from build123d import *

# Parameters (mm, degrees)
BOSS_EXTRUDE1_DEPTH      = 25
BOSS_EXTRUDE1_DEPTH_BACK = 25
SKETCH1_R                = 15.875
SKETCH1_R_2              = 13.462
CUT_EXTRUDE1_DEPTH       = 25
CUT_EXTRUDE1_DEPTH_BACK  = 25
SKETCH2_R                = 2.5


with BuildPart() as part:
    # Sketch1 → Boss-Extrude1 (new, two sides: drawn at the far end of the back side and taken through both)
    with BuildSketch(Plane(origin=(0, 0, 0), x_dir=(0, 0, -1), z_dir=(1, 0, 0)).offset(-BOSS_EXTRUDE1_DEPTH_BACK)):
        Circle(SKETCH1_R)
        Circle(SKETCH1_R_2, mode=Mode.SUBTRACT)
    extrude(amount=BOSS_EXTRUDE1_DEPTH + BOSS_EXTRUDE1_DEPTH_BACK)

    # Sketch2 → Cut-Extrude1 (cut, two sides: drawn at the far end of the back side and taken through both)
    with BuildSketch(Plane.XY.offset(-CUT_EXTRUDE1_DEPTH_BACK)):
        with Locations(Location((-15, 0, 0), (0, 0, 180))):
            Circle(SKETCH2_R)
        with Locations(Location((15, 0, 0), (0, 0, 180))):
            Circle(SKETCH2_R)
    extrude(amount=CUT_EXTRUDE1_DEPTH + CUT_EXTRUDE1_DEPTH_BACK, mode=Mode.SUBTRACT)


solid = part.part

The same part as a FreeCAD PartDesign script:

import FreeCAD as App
import Part
import Sketcher
from FreeCAD import Vector

doc = App.newDocument("Part")
body = doc.addObject("PartDesign::Body", "Body")

# Sketch on YZ plane
sketch1 = doc.addObject("Sketcher::SketchObject", "Sketch")
body.addObject(sketch1)
sketch1.AttachmentSupport = (doc.YZ_Plane, [""])
sketch1.MapMode = "FlatFace"
sketch1.addGeometry([
    Part.Circle(Vector(0, 0, 0), Vector(0, 0, 1), 15.875),
    Part.Circle(Vector(0, 0, 0), Vector(0, 0, 1), 13.462),
], False)
sketch1.addConstraint([
    Sketcher.Constraint("Coincident", 0, 3, -1, 1),
    Sketcher.Constraint("Coincident", 1, 3, -1, 1),
    Sketcher.Constraint("Diameter", 0, 31.75),
    Sketcher.Constraint("Diameter", 1, 26.924),
])
pad1 = doc.addObject("PartDesign::Pad", "Pad")
body.addObject(pad1)
pad1.Profile = sketch1
pad1.Type = "TwoLengths"
pad1.Length = 25
pad1.Length2 = 25

# Sketch on XY plane
sketch2 = doc.addObject("Sketcher::SketchObject", "Sketch001")
body.addObject(sketch2)
sketch2.AttachmentSupport = (doc.XY_Plane, [""])
sketch2.MapMode = "FlatFace"
sketch2.addGeometry([
    Part.Circle(Vector(-15, 0, 0), Vector(0, 0, 1), 2.5),
    Part.Circle(Vector(15, 0, 0), Vector(0, 0, 1), 2.5),
], False)
sketch2.addConstraint([
    Sketcher.Constraint("Equal", 0, 1),
    Sketcher.Constraint("Symmetric", 0, 3, 1, 3, -1, 1),
    Sketcher.Constraint("PointOnObject", 0, 3, -1),
    Sketcher.Constraint("Diameter", 0, 5.0),
    Sketcher.Constraint("DistanceX", 0, 3, -1, 1, 15.0),
])
pocket1 = doc.addObject("PartDesign::Pocket", "Pocket")
body.addObject(pocket1)
pocket1.Profile = sketch2
pocket1.Type = "ThroughAll"
pocket1.Midplane = True

doc.recompute()
